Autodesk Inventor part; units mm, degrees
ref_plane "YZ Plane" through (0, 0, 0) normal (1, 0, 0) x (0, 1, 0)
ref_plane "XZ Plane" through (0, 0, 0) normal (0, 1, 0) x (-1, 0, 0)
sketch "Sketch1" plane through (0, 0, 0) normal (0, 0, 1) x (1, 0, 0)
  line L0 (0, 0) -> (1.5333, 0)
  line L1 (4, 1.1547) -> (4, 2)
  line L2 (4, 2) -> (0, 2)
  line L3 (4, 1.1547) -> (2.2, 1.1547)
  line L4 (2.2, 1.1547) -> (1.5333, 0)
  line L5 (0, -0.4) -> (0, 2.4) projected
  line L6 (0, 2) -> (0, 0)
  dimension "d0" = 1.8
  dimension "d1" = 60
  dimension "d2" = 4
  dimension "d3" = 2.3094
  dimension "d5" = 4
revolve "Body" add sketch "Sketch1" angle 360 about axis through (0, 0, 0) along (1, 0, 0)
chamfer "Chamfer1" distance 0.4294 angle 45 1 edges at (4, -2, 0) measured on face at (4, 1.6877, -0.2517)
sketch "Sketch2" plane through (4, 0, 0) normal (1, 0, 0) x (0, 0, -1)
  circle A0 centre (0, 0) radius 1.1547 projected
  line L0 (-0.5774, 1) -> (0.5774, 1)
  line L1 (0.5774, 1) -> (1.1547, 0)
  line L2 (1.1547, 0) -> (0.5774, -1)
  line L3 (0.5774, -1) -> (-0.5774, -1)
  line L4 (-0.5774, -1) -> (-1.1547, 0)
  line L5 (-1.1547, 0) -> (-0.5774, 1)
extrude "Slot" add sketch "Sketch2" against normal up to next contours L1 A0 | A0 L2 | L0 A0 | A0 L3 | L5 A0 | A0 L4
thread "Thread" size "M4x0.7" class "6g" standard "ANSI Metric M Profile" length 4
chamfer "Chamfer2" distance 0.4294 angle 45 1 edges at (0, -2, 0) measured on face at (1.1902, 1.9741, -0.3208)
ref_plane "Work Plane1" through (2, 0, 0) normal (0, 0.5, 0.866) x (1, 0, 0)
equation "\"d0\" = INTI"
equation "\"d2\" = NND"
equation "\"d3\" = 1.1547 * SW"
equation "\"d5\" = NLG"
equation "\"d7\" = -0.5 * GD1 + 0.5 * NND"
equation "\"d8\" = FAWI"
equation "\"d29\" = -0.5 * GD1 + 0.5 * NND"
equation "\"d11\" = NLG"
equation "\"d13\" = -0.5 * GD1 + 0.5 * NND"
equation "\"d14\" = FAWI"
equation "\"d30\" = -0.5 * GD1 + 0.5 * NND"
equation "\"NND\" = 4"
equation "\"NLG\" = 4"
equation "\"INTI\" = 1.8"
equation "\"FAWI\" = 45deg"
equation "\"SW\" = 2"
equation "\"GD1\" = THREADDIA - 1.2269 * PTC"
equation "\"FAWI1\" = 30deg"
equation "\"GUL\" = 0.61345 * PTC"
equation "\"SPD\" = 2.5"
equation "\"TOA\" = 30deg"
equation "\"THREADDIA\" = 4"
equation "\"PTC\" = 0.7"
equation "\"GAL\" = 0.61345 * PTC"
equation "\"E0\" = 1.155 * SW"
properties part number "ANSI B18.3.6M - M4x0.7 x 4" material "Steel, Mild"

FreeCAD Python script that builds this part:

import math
import FreeCAD as App
import Part
import Sketcher

V = App.Vector
Q = App.Units.Quantity


def edges_at(feature, points):
    """Names of the edges that pass closest to the given points."""
    edges = feature.Shape.Edges
    near = lambda p: min(range(len(edges)), key=lambda i: edges[i].distToShape(Part.Vertex(*p))[0])
    return sorted({f"Edge{near(p) + 1}" for p in points})

doc = App.newDocument("Part")
body = doc.addObject("PartDesign::Body", "Body")

sketch1 = body.newObject("Sketcher::SketchObject", "Sketch")
sketch1.AttachmentSupport = (doc.getObject("XY_Plane"), [""])
sketch1.MapMode = "FlatFace"
sketch1.addGeometry(Part.LineSegment(V(0, 2, 0), V(0, 0, 0)), False)
sketch1.addGeometry(Part.LineSegment(V(0, 0, 0), V(1.5, 0, 0)), False)
sketch1.addGeometry(Part.LineSegment(V(1.5, 0, 0), V(2.2, 1.2, 0)), False)
sketch1.addGeometry(Part.LineSegment(V(2.2, 1.2, 0), V(4, 1.2, 0)), False)
sketch1.addGeometry(Part.LineSegment(V(4, 1.2, 0), V(4, 2, 0)), False)
sketch1.addGeometry(Part.LineSegment(V(4, 2, 0), V(0, 2, 0)), False)
sketch1.addConstraint(Sketcher.Constraint("Coincident", 0, 2, 1, 1))
sketch1.addConstraint(Sketcher.Constraint("Coincident", 1, 2, 2, 1))
sketch1.addConstraint(Sketcher.Constraint("Coincident", 2, 2, 3, 1))
sketch1.addConstraint(Sketcher.Constraint("Coincident", 3, 2, 4, 1))
sketch1.addConstraint(Sketcher.Constraint("Coincident", 4, 2, 5, 1))
sketch1.addConstraint(Sketcher.Constraint("Coincident", 5, 2, 0, 1))
sketch1.addConstraint(Sketcher.Constraint("Vertical", 0))
sketch1.addConstraint(Sketcher.Constraint("Horizontal", 1))
sketch1.addConstraint(Sketcher.Constraint("Horizontal", 3))
sketch1.addConstraint(Sketcher.Constraint("Vertical", 4))
sketch1.addConstraint(Sketcher.Constraint("Horizontal", 5))
sketch1.addConstraint(Sketcher.Constraint("Coincident", 0, 2, -1, 1))
sketch1.addConstraint(Sketcher.Constraint("DistanceX", 5, 2, 5, 1, Q("4 mm")))
sketch1.addConstraint(Sketcher.Constraint("DistanceX", 3, 1, 3, 2, Q("1.8 mm")))
sketch1.addConstraint(Sketcher.Constraint("DistanceY", 0, 2, 0, 1, Q("2 mm")))
sketch1.addConstraint(Sketcher.Constraint("DistanceX", 1, 1, 1, 2, Q("1.5333 mm")))
sketch1.addConstraint(Sketcher.Constraint("DistanceY", 4, 1, 4, 2, Q("0.8453 mm")))
revolution = body.newObject("PartDesign::Revolution", "Revolution")
revolution.Profile = sketch1
revolution.ReferenceAxis = (sketch1, ["H_Axis"])
revolution.Angle = 360
doc.recompute()

chamfer = body.newObject("PartDesign::Chamfer", "Chamfer")
chamfer.Base = (revolution, edges_at(revolution, [(4, -2, 0)]))
chamfer.Size = 0.4294

sketch2 = body.newObject("Sketcher::SketchObject", "Sketch001")
sketch2.AttachmentSupport = (doc.getObject("YZ_Plane"), [""])
sketch2.MapMode = "FlatFace"
sketch2.AttachmentOffset = App.Placement(V(0, 0, 4), App.Rotation())
sketch2.addGeometry(Part.LineSegment(V(1, -0.6, 0), V(0, -1.2, 0)), False)
sketch2.addGeometry(Part.ArcOfCircle(Part.Circle(V(0, 0, 0), V(0, 0, 1), 1.2), math.radians(-90), math.radians(-30)), False)
sketch2.addGeometry(Part.ArcOfCircle(Part.Circle(V(0, 0, 0), V(0, 0, 1), 1.2), math.radians(-150), math.radians(-90)), False)
sketch2.addGeometry(Part.LineSegment(V(0, -1.2, 0), V(-1, -0.6, 0)), False)
sketch2.addGeometry(Part.LineSegment(V(1, 0.6, 0), V(1, -0.6, 0)), False)
sketch2.addGeometry(Part.ArcOfCircle(Part.Circle(V(0, 0, 0), V(0, 0, 1), 1.2), math.radians(-30), math.radians(30)), False)
sketch2.addGeometry(Part.ArcOfCircle(Part.Circle(V(0, 0, 0), V(0, 0, 1), 1.2), math.radians(150), math.radians(210)), False)
sketch2.addGeometry(Part.LineSegment(V(-1, 0.6, 0), V(-1, -0.6, 0)), False)
sketch2.addGeometry(Part.LineSegment(V(0, 1.2, 0), V(1, 0.6, 0)), False)
sketch2.addGeometry(Part.ArcOfCircle(Part.Circle(V(0, 0, 0), V(0, 0, 1), 1.2), math.radians(30), math.radians(90)), False)
sketch2.addGeometry(Part.ArcOfCircle(Part.Circle(V(0, 0, 0), V(0, 0, 1), 1.2), math.radians(90), math.radians(150)), False)
sketch2.addGeometry(Part.LineSegment(V(0, 1.2, 0), V(-1, 0.6, 0)), False)
sketch2.addConstraint(Sketcher.Constraint("Coincident", 0, 1, 1, 2))
sketch2.addConstraint(Sketcher.Constraint("Coincident", 1, 1, 0, 2))
sketch2.addConstraint(Sketcher.Constraint("Coincident", 2, 1, 3, 2))
sketch2.addConstraint(Sketcher.Constraint("Coincident", 3, 1, 2, 2))
sketch2.addConstraint(Sketcher.Constraint("Coincident", 4, 1, 5, 2))
sketch2.addConstraint(Sketcher.Constraint("Coincident", 5, 1, 4, 2))
sketch2.addConstraint(Sketcher.Constraint("Coincident", 6, 1, 7, 1))
sketch2.addConstraint(Sketcher.Constraint("Coincident", 7, 2, 6, 2))
sketch2.addConstraint(Sketcher.Constraint("Coincident", 8, 1, 9, 2))
sketch2.addConstraint(Sketcher.Constraint("Coincident", 9, 1, 8, 2))
sketch2.addConstraint(Sketcher.Constraint("Coincident", 10, 1, 11, 1))
sketch2.addConstraint(Sketcher.Constraint("Coincident", 11, 2, 10, 2))
sketch2.addConstraint(Sketcher.Constraint("Vertical", 4))
sketch2.addConstraint(Sketcher.Constraint("Vertical", 7))
sketch2.addConstraint(Sketcher.Constraint("Coincident", 1, 3, -1, 1))
sketch2.addConstraint(Sketcher.Constraint("Coincident", 2, 3, -1, 1))
sketch2.addConstraint(Sketcher.Constraint("Coincident", 5, 3, -1, 1))
sketch2.addConstraint(Sketcher.Constraint("Coincident", 6, 3, -1, 1))
sketch2.addConstraint(Sketcher.Constraint("Coincident", 9, 3, -1, 1))
sketch2.addConstraint(Sketcher.Constraint("Coincident", 10, 3, -1, 1))
sketch2.addConstraint(Sketcher.Constraint("Coincident", 3, 1, 1, 1))
sketch2.addConstraint(Sketcher.Constraint("Coincident", 5, 1, 0, 1))
sketch2.addConstraint(Sketcher.Constraint("Coincident", 7, 2, 2, 1))
sketch2.addConstraint(Sketcher.Constraint("Coincident", 9, 1, 4, 1))
sketch2.addConstraint(Sketcher.Constraint("Coincident", 10, 1, 8, 1))
sketch2.addConstraint(Sketcher.Constraint("PointOnObject", 1, 1, -2))
sketch2.addConstraint(Sketcher.Constraint("PointOnObject", 8, 1, -2))
sketch2.addConstraint(Sketcher.Constraint("Parallel", 3, 8))
sketch2.addConstraint(Sketcher.Constraint("Parallel", 0, 11))
sketch2.addConstraint(Sketcher.Constraint("DistanceX", -1, 1, 0, 1, Q("1 mm")))
sketch2.addConstraint(Sketcher.Constraint("Radius", 1, Q("1.1547 mm")))
pad1 = body.newObject("PartDesign::Pad", "Pad")
pad1.Profile = sketch2
pad1.Type = "UpToFirst"
pad1.Reversed = True
doc.recompute()

chamfer2 = body.newObject("PartDesign::Chamfer", "Chamfer001")
chamfer2.Base = (pad1, edges_at(pad1, [(0, -2, 0)]))
chamfer2.Size = 0.4294

doc.recompute()
